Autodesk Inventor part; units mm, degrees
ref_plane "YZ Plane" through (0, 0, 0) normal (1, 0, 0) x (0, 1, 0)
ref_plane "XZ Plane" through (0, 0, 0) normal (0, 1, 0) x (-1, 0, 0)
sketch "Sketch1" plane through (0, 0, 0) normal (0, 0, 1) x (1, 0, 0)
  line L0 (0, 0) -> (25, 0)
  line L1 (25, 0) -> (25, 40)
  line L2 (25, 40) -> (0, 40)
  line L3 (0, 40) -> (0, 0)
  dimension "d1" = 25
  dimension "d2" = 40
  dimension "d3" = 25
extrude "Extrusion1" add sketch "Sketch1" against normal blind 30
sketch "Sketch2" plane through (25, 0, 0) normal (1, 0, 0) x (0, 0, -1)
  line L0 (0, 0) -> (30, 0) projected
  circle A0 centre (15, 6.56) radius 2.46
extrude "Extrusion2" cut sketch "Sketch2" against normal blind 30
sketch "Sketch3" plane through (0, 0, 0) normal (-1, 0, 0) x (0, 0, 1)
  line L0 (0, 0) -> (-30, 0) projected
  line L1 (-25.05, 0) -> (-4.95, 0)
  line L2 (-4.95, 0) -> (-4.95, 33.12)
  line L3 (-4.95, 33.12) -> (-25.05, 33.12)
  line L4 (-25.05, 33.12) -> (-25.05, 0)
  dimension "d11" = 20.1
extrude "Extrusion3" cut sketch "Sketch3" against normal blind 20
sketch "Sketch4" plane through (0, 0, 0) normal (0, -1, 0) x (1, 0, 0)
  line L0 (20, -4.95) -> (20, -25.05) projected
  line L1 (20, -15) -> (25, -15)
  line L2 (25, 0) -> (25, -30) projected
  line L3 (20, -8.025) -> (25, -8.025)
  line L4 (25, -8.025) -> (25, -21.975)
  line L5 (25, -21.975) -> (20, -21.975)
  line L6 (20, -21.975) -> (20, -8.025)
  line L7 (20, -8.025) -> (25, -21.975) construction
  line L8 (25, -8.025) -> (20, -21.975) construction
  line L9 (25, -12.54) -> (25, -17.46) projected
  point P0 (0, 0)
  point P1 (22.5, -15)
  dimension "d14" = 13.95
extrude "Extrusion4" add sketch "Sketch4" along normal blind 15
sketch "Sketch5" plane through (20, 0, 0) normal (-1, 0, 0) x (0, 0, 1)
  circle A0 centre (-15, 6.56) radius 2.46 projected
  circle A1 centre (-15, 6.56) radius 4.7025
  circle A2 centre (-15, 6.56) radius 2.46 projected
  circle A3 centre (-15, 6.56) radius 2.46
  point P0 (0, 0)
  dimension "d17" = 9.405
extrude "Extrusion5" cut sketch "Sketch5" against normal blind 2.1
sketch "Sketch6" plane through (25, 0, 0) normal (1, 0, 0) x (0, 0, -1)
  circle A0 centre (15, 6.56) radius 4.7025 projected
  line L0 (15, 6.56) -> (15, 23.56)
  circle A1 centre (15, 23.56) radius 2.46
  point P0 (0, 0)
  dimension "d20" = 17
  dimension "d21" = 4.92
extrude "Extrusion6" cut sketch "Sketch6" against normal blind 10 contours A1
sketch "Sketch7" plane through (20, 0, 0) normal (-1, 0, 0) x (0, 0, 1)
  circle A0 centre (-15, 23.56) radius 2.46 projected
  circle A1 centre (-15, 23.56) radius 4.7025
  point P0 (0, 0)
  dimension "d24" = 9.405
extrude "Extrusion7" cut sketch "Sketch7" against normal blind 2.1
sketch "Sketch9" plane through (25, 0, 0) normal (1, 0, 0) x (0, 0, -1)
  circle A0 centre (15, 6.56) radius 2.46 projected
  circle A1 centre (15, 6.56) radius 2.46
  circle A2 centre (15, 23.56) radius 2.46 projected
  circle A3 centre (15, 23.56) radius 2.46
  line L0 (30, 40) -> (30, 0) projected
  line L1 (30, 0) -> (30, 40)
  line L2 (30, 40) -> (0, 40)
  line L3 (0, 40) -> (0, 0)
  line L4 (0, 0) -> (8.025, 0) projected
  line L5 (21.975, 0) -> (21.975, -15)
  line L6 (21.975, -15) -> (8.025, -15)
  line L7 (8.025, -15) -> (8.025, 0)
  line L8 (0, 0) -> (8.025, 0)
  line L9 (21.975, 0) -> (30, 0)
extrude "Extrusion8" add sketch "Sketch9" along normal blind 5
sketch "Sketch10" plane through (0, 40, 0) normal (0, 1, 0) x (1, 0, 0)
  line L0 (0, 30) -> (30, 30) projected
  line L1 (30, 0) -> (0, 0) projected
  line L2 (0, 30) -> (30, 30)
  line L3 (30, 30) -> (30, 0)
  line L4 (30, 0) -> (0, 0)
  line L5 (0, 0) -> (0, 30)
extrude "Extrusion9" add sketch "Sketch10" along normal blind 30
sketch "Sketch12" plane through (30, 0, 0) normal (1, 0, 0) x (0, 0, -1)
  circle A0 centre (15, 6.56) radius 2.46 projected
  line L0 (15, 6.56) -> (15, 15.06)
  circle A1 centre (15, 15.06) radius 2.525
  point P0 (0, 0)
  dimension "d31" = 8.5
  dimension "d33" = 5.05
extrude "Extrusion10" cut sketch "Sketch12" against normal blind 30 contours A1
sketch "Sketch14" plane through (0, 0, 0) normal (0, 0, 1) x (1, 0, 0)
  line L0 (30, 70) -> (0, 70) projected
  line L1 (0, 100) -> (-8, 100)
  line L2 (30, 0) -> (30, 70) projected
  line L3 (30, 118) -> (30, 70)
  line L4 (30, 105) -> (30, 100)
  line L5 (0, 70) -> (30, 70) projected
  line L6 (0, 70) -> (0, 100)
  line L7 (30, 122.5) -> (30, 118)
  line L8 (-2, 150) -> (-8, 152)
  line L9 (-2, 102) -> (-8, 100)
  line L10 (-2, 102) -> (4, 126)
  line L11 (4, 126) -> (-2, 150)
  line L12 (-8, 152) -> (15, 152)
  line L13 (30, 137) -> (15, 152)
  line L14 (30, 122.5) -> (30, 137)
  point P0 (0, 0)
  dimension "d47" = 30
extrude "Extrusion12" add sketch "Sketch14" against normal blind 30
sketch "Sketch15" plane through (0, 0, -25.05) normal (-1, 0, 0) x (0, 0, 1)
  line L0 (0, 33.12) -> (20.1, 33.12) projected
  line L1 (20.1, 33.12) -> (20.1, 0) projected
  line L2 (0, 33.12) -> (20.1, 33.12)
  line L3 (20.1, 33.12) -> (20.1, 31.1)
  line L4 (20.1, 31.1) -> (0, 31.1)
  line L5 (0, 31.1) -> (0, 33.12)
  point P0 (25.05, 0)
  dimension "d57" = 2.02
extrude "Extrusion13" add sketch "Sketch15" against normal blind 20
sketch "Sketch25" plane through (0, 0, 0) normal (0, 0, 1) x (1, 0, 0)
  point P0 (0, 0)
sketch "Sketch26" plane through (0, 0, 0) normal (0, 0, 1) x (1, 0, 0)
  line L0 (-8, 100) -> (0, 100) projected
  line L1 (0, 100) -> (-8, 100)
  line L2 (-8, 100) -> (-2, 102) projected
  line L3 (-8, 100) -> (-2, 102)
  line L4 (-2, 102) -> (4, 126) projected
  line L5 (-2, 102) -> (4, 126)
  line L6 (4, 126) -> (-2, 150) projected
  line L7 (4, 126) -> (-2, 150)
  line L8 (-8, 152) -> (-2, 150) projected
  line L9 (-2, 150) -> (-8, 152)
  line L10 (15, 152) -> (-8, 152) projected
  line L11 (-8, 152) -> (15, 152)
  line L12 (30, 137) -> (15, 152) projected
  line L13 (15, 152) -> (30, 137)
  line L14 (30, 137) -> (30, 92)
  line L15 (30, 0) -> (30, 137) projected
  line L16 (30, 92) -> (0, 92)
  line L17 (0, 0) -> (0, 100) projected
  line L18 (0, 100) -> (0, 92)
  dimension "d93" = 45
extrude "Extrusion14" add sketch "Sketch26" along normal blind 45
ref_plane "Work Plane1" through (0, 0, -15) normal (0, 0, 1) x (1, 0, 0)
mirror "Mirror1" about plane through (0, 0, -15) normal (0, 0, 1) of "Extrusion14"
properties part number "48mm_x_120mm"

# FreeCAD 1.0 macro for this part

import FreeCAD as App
import Part
import Sketcher

V = App.Vector
Q = App.Units.Quantity

doc = App.newDocument("Part")
params = doc.addObject("Spreadsheet::Sheet", "Params")
for row, (alias, value) in enumerate([
    ("sketch1_width", "25 mm"),
    ("sketch1_height", "40 mm"),
    ("pad1_length", "30 mm"),
    ("sketch2_diameter", "4.92 mm"),
    ("pocket1_length", "30 mm"),
    ("sketch3_height", "20.1 mm"),
    ("sketch3_width", "33.12 mm"),
    ("pocket2_length", "20 mm"),
    ("sketch4_height", "13.95 mm"),
    ("sketch4_width", "5 mm"),
    ("pad2_length", "15 mm"),
    ("sketch5_diameter", "4.92 mm"),
    ("pocket3_length", "2.1 mm"),
    ("sketch6_diameter", "4.92 mm"),
    ("pocket4_length", "10 mm"),
    ("sketch7_diameter", "4.92 mm"),
    ("pocket5_length", "2.1 mm"),
    ("sketch8_diameter", "4.92 mm"),
    ("sketch8_width", "40 mm"),
    ("sketch8_width2", "15 mm"),
    ("sketch8_height", "30 mm"),
    ("sketch8_height2", "13.95 mm"),
    ("pad3_length", "5 mm"),
    ("sketch9_width", "30 mm"),
    ("pad4_length", "30 mm"),
    ("sketch10_diameter", "5.05 mm"),
    ("pocket6_length", "30 mm"),
    ("sketch11_width", "30 mm"),
    ("sketch11_width2", "23 mm"),
    ("sketch11_width3", "8 mm"),
    ("sketch11_height", "67 mm"),
    ("pad5_length", "30 mm"),
    ("sketch12_width", "2.02 mm"),
    ("sketch12_height", "20.1 mm"),
    ("pad6_length", "20 mm"),
    ("sketch13_height", "45 mm"),
    ("sketch13_width", "8 mm"),
    ("sketch13_width2", "30 mm"),
    ("sketch13_width3", "23 mm"),
    ("pad7_length", "45 mm"),
], start=1):
    params.set(f"A{row}", alias)
    params.set(f"B{row}", "=" + value)
    params.setAlias(f"B{row}", alias)

body = doc.addObject("PartDesign::Body", "Body")

# Sketch on XY plane
sketch1 = body.newObject("Sketcher::SketchObject", "Sketch")
sketch1.AttachmentSupport = (doc.getObject("XY_Plane"), [""])
sketch1.MapMode = "FlatFace"
sketch1.addGeometry([
    Part.LineSegment(V(0, 40, 0), V(0, 0, 0)),
    Part.LineSegment(V(0, 0, 0), V(25, 0, 0)),
    Part.LineSegment(V(25, 0, 0), V(25, 40, 0)),
    Part.LineSegment(V(25, 40, 0), V(0, 40, 0)),
], False)
sketch1.addConstraint([
    Sketcher.Constraint("Coincident", 0, 2, 1, 1),
    Sketcher.Constraint("Coincident", 1, 2, 2, 1),
    Sketcher.Constraint("Coincident", 2, 2, 3, 1),
    Sketcher.Constraint("Coincident", 3, 2, 0, 1),
    Sketcher.Constraint("Vertical", 0),
    Sketcher.Constraint("Horizontal", 1),
    Sketcher.Constraint("Vertical", 2),
    Sketcher.Constraint("Horizontal", 3),
    Sketcher.Constraint("Coincident", 0, 2, -1, 1),
    Sketcher.Constraint("DistanceX", 1, 1, 1, 2, 25.0),
    Sketcher.Constraint("DistanceY", 0, 2, 0, 1, 40.0),
])
sketch1.setExpression("Constraints[9]", "Params.sketch1_width")
sketch1.setExpression("Constraints[10]", "Params.sketch1_height")
pad1 = body.newObject("PartDesign::Pad", "Pad")
pad1.Profile = sketch1
pad1.setExpression("Length", "Params.pad1_length")
pad1.Reversed = True

# Sketch on YZ plane
sketch2 = body.newObject("Sketcher::SketchObject", "Sketch001")
sketch2.AttachmentSupport = (doc.getObject("YZ_Plane"), [""])
sketch2.MapMode = "FlatFace"
sketch2.AttachmentOffset = App.Placement(V(0, 0, 25), App.Rotation())
sketch2.addGeometry(Part.Circle(V(6.56, -15, 0), V(0, 0, 1), 2.46), False)
sketch2.addConstraint([
    Sketcher.Constraint("Diameter", 0, 4.92),
    Sketcher.Constraint("DistanceY", 0, 3, -1, 1, 15.0),
    Sketcher.Constraint("DistanceX", -1, 1, 0, 3, 6.56),
])
sketch2.setExpression("Constraints[0]", "Params.sketch2_diameter")
pocket1 = body.newObject("PartDesign::Pocket", "Pocket")
pocket1.Profile = sketch2
pocket1.setExpression("Length", "Params.pocket1_length")

# Sketch on YZ plane
sketch3 = body.newObject("Sketcher::SketchObject", "Sketch002")
sketch3.AttachmentSupport = (doc.getObject("YZ_Plane"), [""])
sketch3.MapMode = "FlatFace"
sketch3.addGeometry([
    Part.LineSegment(V(0, -25.05, 0), V(0, -4.95, 0)),
    Part.LineSegment(V(0, -4.95, 0), V(33.12, -4.95, 0)),
    Part.LineSegment(V(33.12, -4.95, 0), V(33.12, -25.05, 0)),
    Part.LineSegment(V(33.12, -25.05, 0), V(0, -25.05, 0)),
], False)
sketch3.addConstraint([
    Sketcher.Constraint("Coincident", 0, 2, 1, 1),
    Sketcher.Constraint("Coincident", 1, 2, 2, 1),
    Sketcher.Constraint("Coincident", 2, 2, 3, 1),
    Sketcher.Constraint("Coincident", 3, 2, 0, 1),
    Sketcher.Constraint("Vertical", 0),
    Sketcher.Constraint("Horizontal", 1),
    Sketcher.Constraint("Vertical", 2),
    Sketcher.Constraint("Horizontal", 3),
    Sketcher.Constraint("PointOnObject", 0, 2, -2),
    Sketcher.Constraint("DistanceY", 0, 1, 0, 2, 20.1),
    Sketcher.Constraint("DistanceX", 1, 1, 1, 2, 33.12),
    Sketcher.Constraint("DistanceY", 0, 2, -1, 1, 4.95),
])
sketch3.setExpression("Constraints[9]", "Params.sketch3_height")
sketch3.setExpression("Constraints[10]", "Params.sketch3_width")
pocket2 = body.newObject("PartDesign::Pocket", "Pocket001")
pocket2.Profile = sketch3
pocket2.setExpression("Length", "Params.pocket2_length")
pocket2.Reversed = True

# Sketch on XZ plane
sketch4 = body.newObject("Sketcher::SketchObject", "Sketch003")
sketch4.AttachmentSupport = (doc.getObject("XZ_Plane"), [""])
sketch4.MapMode = "FlatFace"
sketch4.addGeometry([
    Part.LineSegment(V(25, -8.025, 0), V(20, -8.025, 0)),
    Part.LineSegment(V(20, -8.025, 0), V(20, -21.975, 0)),
    Part.LineSegment(V(20, -21.975, 0), V(25, -21.975, 0)),
    Part.LineSegment(V(25, -21.975, 0), V(25, -8.025, 0)),
], False)
sketch4.addConstraint([
    Sketcher.Constraint("Coincident", 0, 2, 1, 1),
    Sketcher.Constraint("Coincident", 1, 2, 2, 1),
    Sketcher.Constraint("Coincident", 2, 2, 3, 1),
    Sketcher.Constraint("Coincident", 3, 2, 0, 1),
    Sketcher.Constraint("Horizontal", 0),
    Sketcher.Constraint("Vertical", 1),
    Sketcher.Constraint("Horizontal", 2),
    Sketcher.Constraint("Vertical", 3),
    Sketcher.Constraint("DistanceY", 1, 2, 1, 1, 13.95),
    Sketcher.Constraint("DistanceX", 0, 2, 0, 1, 5.0),
    Sketcher.Constraint("DistanceX", -1, 1, 0, 2, 20.0),
    Sketcher.Constraint("DistanceY", 0, 2, -1, 1, 8.025),
])
sketch4.setExpression("Constraints[8]", "Params.sketch4_height")
sketch4.setExpression("Constraints[9]", "Params.sketch4_width")
pad2 = body.newObject("PartDesign::Pad", "Pad001")
pad2.Profile = sketch4
pad2.setExpression("Length", "Params.pad2_length")

# Sketch on YZ plane
sketch5 = body.newObject("Sketcher::SketchObject", "Sketch004")
sketch5.AttachmentSupport = (doc.getObject("YZ_Plane"), [""])
sketch5.MapMode = "FlatFace"
sketch5.AttachmentOffset = App.Placement(V(0, 0, 20), App.Rotation())
sketch5.addGeometry([
    Part.Circle(V(6.56, -15, 0), V(0, 0, 1), 4.7025),
    Part.Circle(V(6.56, -15, 0), V(0, 0, 1), 2.46),
], False)
sketch5.addConstraint([
    Sketcher.Constraint("Coincident", 1, 3, 0, 3),
    Sketcher.Constraint("Diameter", 0, 9.405),
    Sketcher.Constraint("Diameter", 1, 4.92),
    Sketcher.Constraint("DistanceY", 0, 3, -1, 1, 15.0),
    Sketcher.Constraint("DistanceX", -1, 1, 0, 3, 6.56),
])
sketch5.setExpression("Constraints[2]", "Params.sketch5_diameter")
pocket3 = body.newObject("PartDesign::Pocket", "Pocket002")
pocket3.Profile = sketch5
pocket3.setExpression("Length", "Params.pocket3_length")
pocket3.Reversed = True

# Sketch on YZ plane
sketch6 = body.newObject("Sketcher::SketchObject", "Sketch005")
sketch6.AttachmentSupport = (doc.getObject("YZ_Plane"), [""])
sketch6.MapMode = "FlatFace"
sketch6.AttachmentOffset = App.Placement(V(0, 0, 25), App.Rotation())
sketch6.addGeometry(Part.Circle(V(23.56, -15, 0), V(0, 0, 1), 2.46), False)
sketch6.addConstraint([
    Sketcher.Constraint("Diameter", 0, 4.92),
    Sketcher.Constraint("DistanceY", 0, 3, -1, 1, 15.0),
    Sketcher.Constraint("DistanceX", -1, 1, 0, 3, 23.56),
])
sketch6.setExpression("Constraints[0]", "Params.sketch6_diameter")
pocket4 = body.newObject("PartDesign::Pocket", "Pocket003")
pocket4.Profile = sketch6
pocket4.setExpression("Length", "Params.pocket4_length")

# Sketch on YZ plane
sketch7 = body.newObject("Sketcher::SketchObject", "Sketch006")
sketch7.AttachmentSupport = (doc.getObject("YZ_Plane"), [""])
sketch7.MapMode = "FlatFace"
sketch7.AttachmentOffset = App.Placement(V(0, 0, 20), App.Rotation())
sketch7.addGeometry([
    Part.Circle(V(23.56, -15, 0), V(0, 0, 1), 4.7025),
    Part.Circle(V(23.56, -15, 0), V(0, 0, 1), 2.46),
], False)
sketch7.addConstraint([
    Sketcher.Constraint("Coincident", 1, 3, 0, 3),
    Sketcher.Constraint("Diameter", 0, 9.405),
    Sketcher.Constraint("Diameter", 1, 4.92),
    Sketcher.Constraint("DistanceY", 0, 3, -1, 1, 15.0),
    Sketcher.Constraint("DistanceX", -1, 1, 0, 3, 23.56),
])
sketch7.setExpression("Constraints[2]", "Params.sketch7_diameter")
pocket5 = body.newObject("PartDesign::Pocket", "Pocket004")
pocket5.Profile = sketch7
pocket5.setExpression("Length", "Params.pocket5_length")
pocket5.Reversed = True

# Sketch on YZ plane
sketch8 = body.newObject("Sketcher::SketchObject", "Sketch007")
sketch8.AttachmentSupport = (doc.getObject("YZ_Plane"), [""])
sketch8.MapMode = "FlatFace"
sketch8.AttachmentOffset = App.Placement(V(0, 0, 25), App.Rotation())
sketch8.addGeometry([
    Part.LineSegment(V(0, -30, 0), V(40, -30, 0)),  # 0
    Part.LineSegment(V(40, -30, 0), V(40, 0, 0)),  # 1
    Part.LineSegment(V(40, 0, 0), V(0, 0, 0)),  # 2
    Part.LineSegment(V(0, 0, 0), V(0, -8.025, 0)),  # 3
    Part.LineSegment(V(0, -8.025, 0), V(-15, -8.025, 0)),  # 4
    Part.LineSegment(V(-15, -8.025, 0), V(-15, -21.975, 0)),  # 5
    Part.LineSegment(V(-15, -21.975, 0), V(0, -21.975, 0)),  # 6
    Part.LineSegment(V(0, -21.975, 0), V(0, -30, 0)),  # 7
    Part.Circle(V(6.56, -15, 0), V(0, 0, 1), 2.46),  # 8
    Part.Circle(V(23.56, -15, 0), V(0, 0, 1), 2.46),  # 9
], False)
sketch8.addConstraint([
    Sketcher.Constraint("Coincident", 0, 2, 1, 1),
    Sketcher.Constraint("Coincident", 1, 2, 2, 1),
    Sketcher.Constraint("Coincident", 2, 2, 3, 1),
    Sketcher.Constraint("Coincident", 3, 2, 4, 1),
    Sketcher.Constraint("Coincident", 4, 2, 5, 1),
    Sketcher.Constraint("Coincident", 5, 2, 6, 1),
    Sketcher.Constraint("Coincident", 6, 2, 7, 1),
    Sketcher.Constraint("Coincident", 7, 2, 0, 1),
    Sketcher.Constraint("Horizontal", 0),
    Sketcher.Constraint("Vertical", 1),
    Sketcher.Constraint("Horizontal", 2),
    Sketcher.Constraint("Vertical", 3),
    Sketcher.Constraint("Horizontal", 4),
    Sketcher.Constraint("Vertical", 5),
    Sketcher.Constraint("Horizontal", 6),
    Sketcher.Constraint("Vertical", 7),
    Sketcher.Constraint("Coincident", 2, 2, -1, 1),
    Sketcher.Constraint("Equal", 8, 9),
    Sketcher.Constraint("PointOnObject", 6, 2, -2),
    Sketcher.Constraint("Horizontal", 8, 3, 9, 3),
    Sketcher.Constraint("Equal", 3, 7),
    Sketcher.Constraint("Diameter", 8, 4.92),
    Sketcher.Constraint("DistanceX", 0, 1, 0, 2, 40.0),
    Sketcher.Constraint("DistanceX", 4, 2, 4, 1, 15.0),
    Sketcher.Constraint("DistanceY", 1, 1, 1, 2, 30.0),
    Sketcher.Constraint("DistanceY", 8, 3, -1, 1, 15.0),
    Sketcher.Constraint("DistanceX", 8, 3, 9, 3, 17.0),
    Sketcher.Constraint("DistanceY", 5, 2, 5, 1, 13.95),
    Sketcher.Constraint("DistanceX", -1, 1, 8, 3, 6.56),
])
sketch8.setExpression("Constraints[21]", "Params.sketch8_diameter")
sketch8.setExpression("Constraints[22]", "Params.sketch8_width")
sketch8.setExpression("Constraints[23]", "Params.sketch8_width2")
sketch8.setExpression("Constraints[24]", "Params.sketch8_height")
sketch8.setExpression("Constraints[27]", "Params.sketch8_height2")
pad3 = body.newObject("PartDesign::Pad", "Pad002")
pad3.Profile = sketch8
pad3.setExpression("Length", "Params.pad3_length")

# Sketch on XZ plane
sketch9 = body.newObject("Sketcher::SketchObject", "Sketch008")
sketch9.AttachmentSupport = (doc.getObject("XZ_Plane"), [""])
sketch9.MapMode = "FlatFace"
sketch9.AttachmentOffset = App.Placement(V(0, 0, -40), App.Rotation())
sketch9.addGeometry([
    Part.LineSegment(V(30, -30, 0), V(0, -30, 0)),
    Part.LineSegment(V(0, -30, 0), V(0, 0, 0)),
    Part.LineSegment(V(0, 0, 0), V(30, 0, 0)),
    Part.LineSegment(V(30, 0, 0), V(30, -30, 0)),
], False)
sketch9.addConstraint([
    Sketcher.Constraint("Coincident", 0, 2, 1, 1),
    Sketcher.Constraint("Coincident", 1, 2, 2, 1),
    Sketcher.Constraint("Coincident", 2, 2, 3, 1),
    Sketcher.Constraint("Coincident", 3, 2, 0, 1),
    Sketcher.Constraint("Horizontal", 0),
    Sketcher.Constraint("Vertical", 1),
    Sketcher.Constraint("Horizontal", 2),
    Sketcher.Constraint("Vertical", 3),
    Sketcher.Constraint("Coincident", 1, 2, -1, 1),
    Sketcher.Constraint("Equal", 2, 1),
    Sketcher.Constraint("DistanceX", 0, 2, 0, 1, 30.0),
])
sketch9.setExpression("Constraints[10]", "Params.sketch9_width")
pad4 = body.newObject("PartDesign::Pad", "Pad003")
pad4.Profile = sketch9
pad4.setExpression("Length", "Params.pad4_length")
pad4.Reversed = True

# Sketch on YZ plane
sketch10 = body.newObject("Sketcher::SketchObject", "Sketch009")
sketch10.AttachmentSupport = (doc.getObject("YZ_Plane"), [""])
sketch10.MapMode = "FlatFace"
sketch10.AttachmentOffset = App.Placement(V(0, 0, 30), App.Rotation())
sketch10.addGeometry(Part.Circle(V(15.06, -15, 0), V(0, 0, 1), 2.525), False)
sketch10.addConstraint([
    Sketcher.Constraint("Diameter", 0, 5.05),
    Sketcher.Constraint("DistanceY", 0, 3, -1, 1, 15.0),
    Sketcher.Constraint("DistanceX", -1, 1, 0, 3, 15.06),
])
sketch10.setExpression("Constraints[0]", "Params.sketch10_diameter")
pocket6 = body.newObject("PartDesign::Pocket", "Pocket005")
pocket6.Profile = sketch10
pocket6.setExpression("Length", "Params.pocket6_length")

# Sketch on XY plane
sketch11 = body.newObject("Sketcher::SketchObject", "Sketch010")
sketch11.AttachmentSupport = (doc.getObject("XY_Plane"), [""])
sketch11.MapMode = "FlatFace"
sketch11.addGeometry([
    Part.LineSegment(V(0, 70, 0), V(30, 70, 0)),  # 0
    Part.LineSegment(V(30, 70, 0), V(30, 137, 0)),  # 1
    Part.LineSegment(V(30, 137, 0), V(15, 152, 0)),  # 2
    Part.LineSegment(V(15, 152, 0), V(-8, 152, 0)),  # 3
    Part.LineSegment(V(-8, 152, 0), V(-2, 150, 0)),  # 4
    Part.LineSegment(V(-2, 150, 0), V(4, 126, 0)),  # 5
    Part.LineSegment(V(4, 126, 0), V(-2, 102, 0)),  # 6
    Part.LineSegment(V(-2, 102, 0), V(-8, 100, 0)),  # 7
    Part.LineSegment(V(-8, 100, 0), V(0, 100, 0)),  # 8
    Part.LineSegment(V(0, 100, 0), V(0, 70, 0)),  # 9
], False)
sketch11.addConstraint([
    Sketcher.Constraint("Coincident", 0, 2, 1, 1),
    Sketcher.Constraint("Coincident", 1, 2, 2, 1),
    Sketcher.Constraint("Coincident", 2, 2, 3, 1),
    Sketcher.Constraint("Coincident", 3, 2, 4, 1),
    Sketcher.Constraint("Coincident", 4, 2, 5, 1),
    Sketcher.Constraint("Coincident", 5, 2, 6, 1),
    Sketcher.Constraint("Coincident", 6, 2, 7, 1),
    Sketcher.Constraint("Coincident", 7, 2, 8, 1),
    Sketcher.Constraint("Coincident", 8, 2, 9, 1),
    Sketcher.Constraint("Coincident", 9, 2, 0, 1),
    Sketcher.Constraint("Horizontal", 0),
    Sketcher.Constraint("Vertical", 1),
    Sketcher.Constraint("Horizontal", 3),
    Sketcher.Constraint("Horizontal", 8),
    Sketcher.Constraint("Vertical", 9),
    Sketcher.Constraint("PointOnObject", 8, 2, -2),
    Sketcher.Constraint("Vertical", 4, 2, 6, 2),
    Sketcher.Constraint("Vertical", 3, 2, 7, 2),
    Sketcher.Constraint("Equal", 0, 9),
    Sketcher.Constraint("Equal", 5, 6),
    Sketcher.Constraint("Equal", 4, 7),
    Sketcher.Constraint("DistanceX", 0, 1, 0, 2, 30.0),
    Sketcher.Constraint("DistanceX", 3, 2, 3, 1, 23.0),
    Sketcher.Constraint("DistanceX", 8, 1, 8, 2, 8.0),
    Sketcher.Constraint("DistanceY", 1, 1, 1, 2, 67.0),
    Sketcher.Constraint("Angle", 2, Q("135 deg")),
    Sketcher.Constraint("DistanceY", -1, 1, 0, 2, 70.0),
    Sketcher.Constraint("DistanceX", 4, 2, -1, 1, 2.0),
    Sketcher.Constraint("DistanceY", -1, 1, 4, 2, 150.0),
    Sketcher.Constraint("DistanceX", -1, 1, 5, 2, 4.0),
])
sketch11.setExpression("Constraints[21]", "Params.sketch11_width")
sketch11.setExpression("Constraints[22]", "Params.sketch11_width2")
sketch11.setExpression("Constraints[23]", "Params.sketch11_width3")
sketch11.setExpression("Constraints[24]", "Params.sketch11_height")
pad5 = body.newObject("PartDesign::Pad", "Pad004")
pad5.Profile = sketch11
pad5.setExpression("Length", "Params.pad5_length")
pad5.Reversed = True

# Sketch on YZ plane
sketch12 = body.newObject("Sketcher::SketchObject", "Sketch011")
sketch12.AttachmentSupport = (doc.getObject("YZ_Plane"), [""])
sketch12.MapMode = "FlatFace"
sketch12.addGeometry([
    Part.LineSegment(V(33.12, -4.95, 0), V(33.12, -25.05, 0)),
    Part.LineSegment(V(33.12, -25.05, 0), V(31.1, -25.05, 0)),
    Part.LineSegment(V(31.1, -25.05, 0), V(31.1, -4.95, 0)),
    Part.LineSegment(V(31.1, -4.95, 0), V(33.12, -4.95, 0)),
], False)
sketch12.addConstraint([
    Sketcher.Constraint("Coincident", 0, 2, 1, 1),
    Sketcher.Constraint("Coincident", 1, 2, 2, 1),
    Sketcher.Constraint("Coincident", 2, 2, 3, 1),
    Sketcher.Constraint("Coincident", 3, 2, 0, 1),
    Sketcher.Constraint("Vertical", 0),
    Sketcher.Constraint("Horizontal", 1),
    Sketcher.Constraint("Vertical", 2),
    Sketcher.Constraint("Horizontal", 3),
    Sketcher.Constraint("DistanceX", 1, 2, 1, 1, 2.02),
    Sketcher.Constraint("DistanceY", 0, 2, 0, 1, 20.1),
    Sketcher.Constraint("DistanceX", -1, 1, 1, 2, 31.1),
    Sketcher.Constraint("DistanceY", 0, 2, -1, 1, 25.05),
])
sketch12.setExpression("Constraints[8]", "Params.sketch12_width")
sketch12.setExpression("Constraints[9]", "Params.sketch12_height")
pad6 = body.newObject("PartDesign::Pad", "Pad005")
pad6.Profile = sketch12
pad6.setExpression("Length", "Params.pad6_length")

# Sketch on XY plane
sketch13 = body.newObject("Sketcher::SketchObject", "Sketch012")
sketch13.AttachmentSupport = (doc.getObject("XY_Plane"), [""])
sketch13.MapMode = "FlatFace"
sketch13.addGeometry([
    Part.LineSegment(V(-2, 102, 0), V(-8, 100, 0)),  # 0
    Part.LineSegment(V(-8, 100, 0), V(0, 100, 0)),  # 1
    Part.LineSegment(V(0, 100, 0), V(0, 92, 0)),  # 2
    Part.LineSegment(V(0, 92, 0), V(30, 92, 0)),  # 3
    Part.LineSegment(V(30, 92, 0), V(30, 137, 0)),  # 4
    Part.LineSegment(V(30, 137, 0), V(15, 152, 0)),  # 5
    Part.LineSegment(V(15, 152, 0), V(-8, 152, 0)),  # 6
    Part.LineSegment(V(-8, 152, 0), V(-2, 150, 0)),  # 7
    Part.LineSegment(V(-2, 150, 0), V(4, 126, 0)),  # 8
    Part.LineSegment(V(4, 126, 0), V(-2, 102, 0)),  # 9
], False)
sketch13.addConstraint([
    Sketcher.Constraint("Coincident", 0, 2, 1, 1),
    Sketcher.Constraint("Coincident", 1, 2, 2, 1),
    Sketcher.Constraint("Coincident", 2, 2, 3, 1),
    Sketcher.Constraint("Coincident", 3, 2, 4, 1),
    Sketcher.Constraint("Coincident", 4, 2, 5, 1),
    Sketcher.Constraint("Coincident", 5, 2, 6, 1),
    Sketcher.Constraint("Coincident", 6, 2, 7, 1),
    Sketcher.Constraint("Coincident", 7, 2, 8, 1),
    Sketcher.Constraint("Coincident", 8, 2, 9, 1),
    Sketcher.Constraint("Coincident", 9, 2, 0, 1),
    Sketcher.Constraint("Horizontal", 1),
    Sketcher.Constraint("Vertical", 2),
    Sketcher.Constraint("Horizontal", 3),
    Sketcher.Constraint("Vertical", 4),
    Sketcher.Constraint("Horizontal", 6),
    Sketcher.Constraint("PointOnObject", 1, 2, -2),
    Sketcher.Constraint("Vertical", 0, 2, 6, 2),
    Sketcher.Constraint("Vertical", 7, 2, 9, 2),
    Sketcher.Constraint("Equal", 1, 2),
    Sketcher.Constraint("Equal", 0, 7),
    Sketcher.Constraint("Equal", 8, 9),
    Sketcher.Constraint("DistanceY", 4, 1, 4, 2, 45.0),
    Sketcher.Constraint("DistanceX", 1, 1, 1, 2, 8.0),
    Sketcher.Constraint("DistanceX", 3, 1, 3, 2, 30.0),
    Sketcher.Constraint("DistanceX", 6, 2, 6, 1, 23.0),
    Sketcher.Constraint("Angle", 5, Q("135 deg")),
    Sketcher.Constraint("DistanceY", -1, 1, 0, 2, 100.0),
    Sketcher.Constraint("DistanceX", 7, 2, -1, 1, 2.0),
    Sketcher.Constraint("DistanceY", -1, 1, 7, 2, 150.0),
    Sketcher.Constraint("DistanceX", -1, 1, 8, 2, 4.0),
])
sketch13.setExpression("Constraints[21]", "Params.sketch13_height")
sketch13.setExpression("Constraints[22]", "Params.sketch13_width")
sketch13.setExpression("Constraints[23]", "Params.sketch13_width2")
sketch13.setExpression("Constraints[24]", "Params.sketch13_width3")
pad7 = body.newObject("PartDesign::Pad", "Pad006")
pad7.Profile = sketch13
pad7.setExpression("Length", "Params.pad7_length")
doc.recompute()

datumplane = body.newObject("PartDesign::Plane", "DatumPlane")
datumplane.AttachmentSupport = (doc.getObject("XY_Plane"), [""])
datumplane.MapMode = "FlatFace"
datumplane.AttachmentOffset = App.Placement(V(0, 0, -15), App.Rotation())
mirrored = body.newObject("PartDesign::Mirrored", "Mirrored")
mirrored.Originals = [pad7]
mirrored.MirrorPlane = (datumplane, [""])
body.Tip = mirrored

doc.recompute()
